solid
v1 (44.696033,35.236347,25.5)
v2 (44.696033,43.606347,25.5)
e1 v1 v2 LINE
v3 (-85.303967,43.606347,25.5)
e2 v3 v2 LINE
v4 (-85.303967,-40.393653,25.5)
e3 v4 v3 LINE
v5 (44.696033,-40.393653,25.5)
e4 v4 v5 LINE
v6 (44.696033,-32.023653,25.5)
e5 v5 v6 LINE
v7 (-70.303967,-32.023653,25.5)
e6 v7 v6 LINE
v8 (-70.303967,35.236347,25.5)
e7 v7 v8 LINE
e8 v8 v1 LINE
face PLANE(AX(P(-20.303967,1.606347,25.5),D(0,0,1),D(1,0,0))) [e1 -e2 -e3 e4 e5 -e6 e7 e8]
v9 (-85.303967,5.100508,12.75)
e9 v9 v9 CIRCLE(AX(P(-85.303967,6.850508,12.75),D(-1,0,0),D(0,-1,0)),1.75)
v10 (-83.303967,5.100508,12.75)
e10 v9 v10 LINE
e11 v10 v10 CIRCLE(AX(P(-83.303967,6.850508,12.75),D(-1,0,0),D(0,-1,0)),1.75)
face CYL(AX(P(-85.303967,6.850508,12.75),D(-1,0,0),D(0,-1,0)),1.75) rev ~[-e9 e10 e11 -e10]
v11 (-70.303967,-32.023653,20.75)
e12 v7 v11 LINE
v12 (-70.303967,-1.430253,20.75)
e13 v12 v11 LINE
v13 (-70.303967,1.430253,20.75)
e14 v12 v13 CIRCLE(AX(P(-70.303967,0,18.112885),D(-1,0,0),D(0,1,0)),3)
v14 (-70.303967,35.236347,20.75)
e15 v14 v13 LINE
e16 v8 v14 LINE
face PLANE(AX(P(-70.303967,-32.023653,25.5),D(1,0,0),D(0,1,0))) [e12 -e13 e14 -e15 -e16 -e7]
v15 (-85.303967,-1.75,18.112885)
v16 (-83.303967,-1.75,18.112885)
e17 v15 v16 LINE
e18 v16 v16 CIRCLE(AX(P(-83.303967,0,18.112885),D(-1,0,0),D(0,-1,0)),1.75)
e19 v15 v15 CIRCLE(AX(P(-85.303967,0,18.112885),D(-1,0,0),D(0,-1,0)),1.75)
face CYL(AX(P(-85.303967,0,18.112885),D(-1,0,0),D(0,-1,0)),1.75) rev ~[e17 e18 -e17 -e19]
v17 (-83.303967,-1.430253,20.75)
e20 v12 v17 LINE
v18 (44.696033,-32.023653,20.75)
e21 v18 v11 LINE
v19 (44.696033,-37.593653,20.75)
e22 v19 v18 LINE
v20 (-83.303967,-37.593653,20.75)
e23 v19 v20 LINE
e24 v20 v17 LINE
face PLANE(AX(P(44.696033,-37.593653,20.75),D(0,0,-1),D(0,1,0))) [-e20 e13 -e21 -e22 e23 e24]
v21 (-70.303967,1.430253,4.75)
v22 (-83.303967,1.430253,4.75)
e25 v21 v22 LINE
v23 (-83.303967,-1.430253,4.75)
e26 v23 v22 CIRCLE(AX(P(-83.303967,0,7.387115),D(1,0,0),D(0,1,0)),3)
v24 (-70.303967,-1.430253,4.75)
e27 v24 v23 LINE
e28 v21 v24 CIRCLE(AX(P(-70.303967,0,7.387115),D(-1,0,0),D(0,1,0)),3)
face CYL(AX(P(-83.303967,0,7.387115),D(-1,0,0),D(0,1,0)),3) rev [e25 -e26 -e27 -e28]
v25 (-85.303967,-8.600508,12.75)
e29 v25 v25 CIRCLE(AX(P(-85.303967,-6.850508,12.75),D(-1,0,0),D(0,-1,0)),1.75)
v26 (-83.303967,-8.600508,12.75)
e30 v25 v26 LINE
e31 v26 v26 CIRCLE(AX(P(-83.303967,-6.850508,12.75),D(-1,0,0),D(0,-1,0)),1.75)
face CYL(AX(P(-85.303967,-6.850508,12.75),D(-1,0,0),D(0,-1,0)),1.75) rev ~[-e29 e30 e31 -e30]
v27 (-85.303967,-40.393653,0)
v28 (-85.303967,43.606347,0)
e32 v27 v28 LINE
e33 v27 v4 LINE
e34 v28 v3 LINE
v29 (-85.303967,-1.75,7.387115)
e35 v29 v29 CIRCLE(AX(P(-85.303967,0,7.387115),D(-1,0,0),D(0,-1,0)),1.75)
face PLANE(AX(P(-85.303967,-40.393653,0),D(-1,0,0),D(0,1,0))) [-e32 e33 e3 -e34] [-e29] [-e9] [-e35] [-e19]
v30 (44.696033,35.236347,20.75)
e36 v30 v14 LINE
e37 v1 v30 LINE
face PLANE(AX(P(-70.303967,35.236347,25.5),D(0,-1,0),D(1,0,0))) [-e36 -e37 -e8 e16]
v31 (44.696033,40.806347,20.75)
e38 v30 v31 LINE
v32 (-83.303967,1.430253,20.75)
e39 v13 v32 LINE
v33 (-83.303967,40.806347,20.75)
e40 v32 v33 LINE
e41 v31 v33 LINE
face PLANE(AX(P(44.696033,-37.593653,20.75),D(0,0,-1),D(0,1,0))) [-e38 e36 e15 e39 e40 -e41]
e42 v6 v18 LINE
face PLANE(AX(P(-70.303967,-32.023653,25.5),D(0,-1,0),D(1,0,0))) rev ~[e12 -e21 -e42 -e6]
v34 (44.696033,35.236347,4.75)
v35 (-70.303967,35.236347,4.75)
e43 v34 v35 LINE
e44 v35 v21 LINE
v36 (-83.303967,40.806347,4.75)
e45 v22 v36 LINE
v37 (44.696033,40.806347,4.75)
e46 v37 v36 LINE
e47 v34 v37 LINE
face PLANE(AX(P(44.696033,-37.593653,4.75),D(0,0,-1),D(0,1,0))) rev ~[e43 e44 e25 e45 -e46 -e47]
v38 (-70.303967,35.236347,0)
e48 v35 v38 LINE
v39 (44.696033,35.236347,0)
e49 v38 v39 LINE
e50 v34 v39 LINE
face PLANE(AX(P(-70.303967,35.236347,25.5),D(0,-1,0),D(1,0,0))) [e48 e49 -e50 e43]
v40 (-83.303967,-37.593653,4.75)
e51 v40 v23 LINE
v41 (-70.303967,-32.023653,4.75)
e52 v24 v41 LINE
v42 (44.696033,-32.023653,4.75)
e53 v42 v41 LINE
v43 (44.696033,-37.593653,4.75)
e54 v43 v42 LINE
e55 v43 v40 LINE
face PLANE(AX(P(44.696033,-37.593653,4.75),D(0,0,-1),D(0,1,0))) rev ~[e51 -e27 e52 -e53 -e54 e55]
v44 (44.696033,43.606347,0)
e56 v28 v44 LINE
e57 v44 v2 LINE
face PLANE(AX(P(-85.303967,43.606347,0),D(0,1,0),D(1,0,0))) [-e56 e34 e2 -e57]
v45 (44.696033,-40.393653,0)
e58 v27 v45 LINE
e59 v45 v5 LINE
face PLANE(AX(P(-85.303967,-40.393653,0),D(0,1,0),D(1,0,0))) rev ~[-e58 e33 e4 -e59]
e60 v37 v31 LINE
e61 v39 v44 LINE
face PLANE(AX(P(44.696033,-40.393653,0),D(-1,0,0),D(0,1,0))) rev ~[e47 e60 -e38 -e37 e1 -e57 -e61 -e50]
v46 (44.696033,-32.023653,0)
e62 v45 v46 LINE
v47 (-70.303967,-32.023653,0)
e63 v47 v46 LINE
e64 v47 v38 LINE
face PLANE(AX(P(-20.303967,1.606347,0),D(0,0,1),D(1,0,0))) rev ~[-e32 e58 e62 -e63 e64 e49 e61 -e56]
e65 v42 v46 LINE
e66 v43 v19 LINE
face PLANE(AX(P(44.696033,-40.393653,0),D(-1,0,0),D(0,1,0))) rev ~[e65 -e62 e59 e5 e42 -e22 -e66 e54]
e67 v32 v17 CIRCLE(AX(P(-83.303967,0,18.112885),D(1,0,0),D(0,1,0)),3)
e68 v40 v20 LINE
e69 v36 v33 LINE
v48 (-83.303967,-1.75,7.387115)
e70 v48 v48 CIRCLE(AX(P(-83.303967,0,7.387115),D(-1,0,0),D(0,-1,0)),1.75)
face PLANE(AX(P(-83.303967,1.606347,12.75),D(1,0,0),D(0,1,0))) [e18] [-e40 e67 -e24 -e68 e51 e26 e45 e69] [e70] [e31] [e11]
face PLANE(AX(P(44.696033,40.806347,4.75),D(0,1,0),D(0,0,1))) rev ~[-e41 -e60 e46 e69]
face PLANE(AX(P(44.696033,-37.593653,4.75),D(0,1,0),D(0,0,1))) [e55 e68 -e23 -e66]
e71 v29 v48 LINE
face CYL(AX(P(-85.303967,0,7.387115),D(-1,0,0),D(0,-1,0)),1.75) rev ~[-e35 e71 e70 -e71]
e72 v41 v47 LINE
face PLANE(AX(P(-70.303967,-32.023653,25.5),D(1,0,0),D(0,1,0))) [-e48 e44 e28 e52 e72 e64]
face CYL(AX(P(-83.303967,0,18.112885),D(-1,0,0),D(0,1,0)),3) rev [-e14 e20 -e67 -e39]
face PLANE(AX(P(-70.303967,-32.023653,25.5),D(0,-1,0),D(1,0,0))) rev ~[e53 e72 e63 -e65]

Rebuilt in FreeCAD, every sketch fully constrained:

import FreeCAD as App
import Part
import Sketcher
from FreeCAD import Vector
Q = App.Units.Quantity


def add_polygon(sketch, points):
    """Adds a closed chain of lines whose ends are joined by coincident constraints."""
    first, n = sketch.GeometryCount, len(points)
    for a, b in zip(points, points[1:] + points[:1]):
        sketch.addGeometry(Part.LineSegment(App.Vector(*a, 0), App.Vector(*b, 0)), False)
    for i in range(n):
        sketch.addConstraint(Sketcher.Constraint("Coincident", first + i, 2, first + (i + 1) % n, 1))

doc = App.newDocument("Part")
body = doc.addObject("PartDesign::Body", "Body")

# Sketch on XY plane
sketch1 = body.newObject("Sketcher::SketchObject", "Sketch")
sketch1.AttachmentSupport = (doc.getObject("XY_Plane"), [""])
sketch1.MapMode = "FlatFace"
add_polygon(sketch1, [(-85, 44), (-85, -40), (45, -40), (45, 44)])  # lines 0-3
sketch1.addConstraint([
    Sketcher.Constraint("Vertical", 0),
    Sketcher.Constraint("Horizontal", 1),
    Sketcher.Constraint("Vertical", 2),
    Sketcher.Constraint("Horizontal", 3),
    Sketcher.Constraint("DistanceX", 1, 1, 1, 2, Q("130 mm")),
    Sketcher.Constraint("DistanceY", 0, 2, 0, 1, Q("84 mm")),
    Sketcher.Constraint("DistanceX", 0, 2, -1, 1, Q("85.303967 mm")),
    Sketcher.Constraint("DistanceY", 0, 2, -1, 1, Q("40.393653 mm")),
])
pad1 = body.newObject("PartDesign::Pad", "Pad")
pad1.Profile = sketch1
pad1.Length = 25.5

# Sketch on YZ plane
sketch2 = body.newObject("Sketcher::SketchObject", "Sketch001")
sketch2.AttachmentSupport = (doc.getObject("YZ_Plane"), [""])
sketch2.MapMode = "FlatFace"
sketch2.AttachmentOffset = App.Placement(Vector(0, 0, 44.696033), App.Rotation())
add_polygon(sketch2, [(-38, 21), (-38, 5), (41, 5), (41, 21)])  # lines 0-3
sketch2.addConstraint([
    Sketcher.Constraint("Vertical", 0),
    Sketcher.Constraint("Horizontal", 1),
    Sketcher.Constraint("Vertical", 2),
    Sketcher.Constraint("Horizontal", 3),
    Sketcher.Constraint("DistanceY", 0, 2, 0, 1, Q("16 mm")),
    Sketcher.Constraint("DistanceX", 1, 1, 1, 2, Q("78.4 mm")),
    Sketcher.Constraint("DistanceY", -1, 1, 0, 2, Q("4.75 mm")),
    Sketcher.Constraint("DistanceX", 0, 2, -1, 1, Q("37.593653 mm")),
])
pocket1 = body.newObject("PartDesign::Pocket", "Pocket")
pocket1.Profile = sketch2
pocket1.Length = 128

# Sketch on XY plane
sketch3 = body.newObject("Sketcher::SketchObject", "Sketch002")
sketch3.AttachmentSupport = (doc.getObject("XY_Plane"), [""])
sketch3.MapMode = "FlatFace"
sketch3.AttachmentOffset = App.Placement(Vector(0, 0, 25.5), App.Rotation())
add_polygon(sketch3, [(-70, 35), (-70, -32), (45, -32), (45, 35)])  # lines 0-3
sketch3.addConstraint([
    Sketcher.Constraint("Vertical", 0),
    Sketcher.Constraint("Horizontal", 1),
    Sketcher.Constraint("Vertical", 2),
    Sketcher.Constraint("Horizontal", 3),
    Sketcher.Constraint("DistanceX", 1, 1, 1, 2, Q("115 mm")),
    Sketcher.Constraint("DistanceY", 0, 2, 0, 1, Q("67.26 mm")),
    Sketcher.Constraint("DistanceX", 0, 2, -1, 1, Q("70.303967 mm")),
    Sketcher.Constraint("DistanceY", 0, 2, -1, 1, Q("32.023653 mm")),
])
pocket2 = body.newObject("PartDesign::Pocket", "Pocket001")
pocket2.Profile = sketch3
pocket2.Type = "ThroughAll"

# Sketch on YZ plane
sketch4 = body.newObject("Sketcher::SketchObject", "Sketch003")
sketch4.AttachmentSupport = (doc.getObject("YZ_Plane"), [""])
sketch4.MapMode = "FlatFace"
sketch4.AttachmentOffset = App.Placement(Vector(0, 0, -85.303967), App.Rotation())
sketch4.addGeometry([
    Part.Circle(Vector(0, 18.1, 0), Vector(0, 0, 1), 1.8),
    Part.Circle(Vector(0, 7.4, 0), Vector(0, 0, 1), 1.8),
    Part.Circle(Vector(6.9, 12.8, 0), Vector(0, 0, 1), 1.8),
    Part.Circle(Vector(-6.9, 12.8, 0), Vector(0, 0, 1), 1.8),
], False)
sketch4.addConstraint([
    Sketcher.Constraint("Equal", 0, 1),
    Sketcher.Constraint("Equal", 1, 2),
    Sketcher.Constraint("Equal", 2, 3),
    Sketcher.Constraint("Symmetric", 2, 3, 3, 3, -2),
    Sketcher.Constraint("PointOnObject", 0, 3, -2),
    Sketcher.Constraint("PointOnObject", 1, 3, -2),
    Sketcher.Constraint("Diameter", 0, Q("3.5 mm")),
    Sketcher.Constraint("DistanceY", -1, 1, 2, 3, Q("12.75 mm")),
    Sketcher.Constraint("DistanceY", 1, 3, 0, 3, Q("10.72577 mm")),
    Sketcher.Constraint("DistanceY", -1, 1, 0, 3, Q("18.112885 mm")),
    Sketcher.Constraint("DistanceX", -1, 1, 2, 3, Q("6.850508 mm")),
])
pocket3 = body.newObject("PartDesign::Pocket", "Pocket002")
pocket3.Profile = sketch4
pocket3.Type = "ThroughAll"
pocket3.Reversed = True

# Sketch on YZ plane
sketch5 = body.newObject("Sketcher::SketchObject", "Sketch004")
sketch5.AttachmentSupport = (doc.getObject("YZ_Plane"), [""])
sketch5.MapMode = "FlatFace"
sketch5.AttachmentOffset = App.Placement(Vector(0, 0, -83.303967), App.Rotation())
sketch5.addGeometry(Part.Circle(Vector(0, 18.1, 0), Vector(0, 0, 1), 3), False)
sketch5.addConstraint([
    Sketcher.Constraint("PointOnObject", 0, 3, -2),
    Sketcher.Constraint("Diameter", 0, Q("6 mm")),
    Sketcher.Constraint("DistanceY", -1, 1, 0, 3, Q("18.112885 mm")),
])
pocket4 = body.newObject("PartDesign::Pocket", "Pocket003")
pocket4.Profile = sketch5
pocket4.Length = 25
pocket4.Reversed = True

# Sketch on YZ plane
sketch6 = body.newObject("Sketcher::SketchObject", "Sketch005")
sketch6.AttachmentSupport = (doc.getObject("YZ_Plane"), [""])
sketch6.MapMode = "FlatFace"
sketch6.AttachmentOffset = App.Placement(Vector(0, 0, -83.303967), App.Rotation())
sketch6.addGeometry(Part.Circle(Vector(0, 7.4, 0), Vector(0, 0, 1), 3), False)
sketch6.addConstraint([
    Sketcher.Constraint("PointOnObject", 0, 3, -2),
    Sketcher.Constraint("Diameter", 0, Q("6 mm")),
    Sketcher.Constraint("DistanceY", -1, 1, 0, 3, Q("7.387115 mm")),
])
pocket5 = body.newObject("PartDesign::Pocket", "Pocket004")
pocket5.Profile = sketch6
pocket5.Length = 25
pocket5.Reversed = True

doc.recompute()
